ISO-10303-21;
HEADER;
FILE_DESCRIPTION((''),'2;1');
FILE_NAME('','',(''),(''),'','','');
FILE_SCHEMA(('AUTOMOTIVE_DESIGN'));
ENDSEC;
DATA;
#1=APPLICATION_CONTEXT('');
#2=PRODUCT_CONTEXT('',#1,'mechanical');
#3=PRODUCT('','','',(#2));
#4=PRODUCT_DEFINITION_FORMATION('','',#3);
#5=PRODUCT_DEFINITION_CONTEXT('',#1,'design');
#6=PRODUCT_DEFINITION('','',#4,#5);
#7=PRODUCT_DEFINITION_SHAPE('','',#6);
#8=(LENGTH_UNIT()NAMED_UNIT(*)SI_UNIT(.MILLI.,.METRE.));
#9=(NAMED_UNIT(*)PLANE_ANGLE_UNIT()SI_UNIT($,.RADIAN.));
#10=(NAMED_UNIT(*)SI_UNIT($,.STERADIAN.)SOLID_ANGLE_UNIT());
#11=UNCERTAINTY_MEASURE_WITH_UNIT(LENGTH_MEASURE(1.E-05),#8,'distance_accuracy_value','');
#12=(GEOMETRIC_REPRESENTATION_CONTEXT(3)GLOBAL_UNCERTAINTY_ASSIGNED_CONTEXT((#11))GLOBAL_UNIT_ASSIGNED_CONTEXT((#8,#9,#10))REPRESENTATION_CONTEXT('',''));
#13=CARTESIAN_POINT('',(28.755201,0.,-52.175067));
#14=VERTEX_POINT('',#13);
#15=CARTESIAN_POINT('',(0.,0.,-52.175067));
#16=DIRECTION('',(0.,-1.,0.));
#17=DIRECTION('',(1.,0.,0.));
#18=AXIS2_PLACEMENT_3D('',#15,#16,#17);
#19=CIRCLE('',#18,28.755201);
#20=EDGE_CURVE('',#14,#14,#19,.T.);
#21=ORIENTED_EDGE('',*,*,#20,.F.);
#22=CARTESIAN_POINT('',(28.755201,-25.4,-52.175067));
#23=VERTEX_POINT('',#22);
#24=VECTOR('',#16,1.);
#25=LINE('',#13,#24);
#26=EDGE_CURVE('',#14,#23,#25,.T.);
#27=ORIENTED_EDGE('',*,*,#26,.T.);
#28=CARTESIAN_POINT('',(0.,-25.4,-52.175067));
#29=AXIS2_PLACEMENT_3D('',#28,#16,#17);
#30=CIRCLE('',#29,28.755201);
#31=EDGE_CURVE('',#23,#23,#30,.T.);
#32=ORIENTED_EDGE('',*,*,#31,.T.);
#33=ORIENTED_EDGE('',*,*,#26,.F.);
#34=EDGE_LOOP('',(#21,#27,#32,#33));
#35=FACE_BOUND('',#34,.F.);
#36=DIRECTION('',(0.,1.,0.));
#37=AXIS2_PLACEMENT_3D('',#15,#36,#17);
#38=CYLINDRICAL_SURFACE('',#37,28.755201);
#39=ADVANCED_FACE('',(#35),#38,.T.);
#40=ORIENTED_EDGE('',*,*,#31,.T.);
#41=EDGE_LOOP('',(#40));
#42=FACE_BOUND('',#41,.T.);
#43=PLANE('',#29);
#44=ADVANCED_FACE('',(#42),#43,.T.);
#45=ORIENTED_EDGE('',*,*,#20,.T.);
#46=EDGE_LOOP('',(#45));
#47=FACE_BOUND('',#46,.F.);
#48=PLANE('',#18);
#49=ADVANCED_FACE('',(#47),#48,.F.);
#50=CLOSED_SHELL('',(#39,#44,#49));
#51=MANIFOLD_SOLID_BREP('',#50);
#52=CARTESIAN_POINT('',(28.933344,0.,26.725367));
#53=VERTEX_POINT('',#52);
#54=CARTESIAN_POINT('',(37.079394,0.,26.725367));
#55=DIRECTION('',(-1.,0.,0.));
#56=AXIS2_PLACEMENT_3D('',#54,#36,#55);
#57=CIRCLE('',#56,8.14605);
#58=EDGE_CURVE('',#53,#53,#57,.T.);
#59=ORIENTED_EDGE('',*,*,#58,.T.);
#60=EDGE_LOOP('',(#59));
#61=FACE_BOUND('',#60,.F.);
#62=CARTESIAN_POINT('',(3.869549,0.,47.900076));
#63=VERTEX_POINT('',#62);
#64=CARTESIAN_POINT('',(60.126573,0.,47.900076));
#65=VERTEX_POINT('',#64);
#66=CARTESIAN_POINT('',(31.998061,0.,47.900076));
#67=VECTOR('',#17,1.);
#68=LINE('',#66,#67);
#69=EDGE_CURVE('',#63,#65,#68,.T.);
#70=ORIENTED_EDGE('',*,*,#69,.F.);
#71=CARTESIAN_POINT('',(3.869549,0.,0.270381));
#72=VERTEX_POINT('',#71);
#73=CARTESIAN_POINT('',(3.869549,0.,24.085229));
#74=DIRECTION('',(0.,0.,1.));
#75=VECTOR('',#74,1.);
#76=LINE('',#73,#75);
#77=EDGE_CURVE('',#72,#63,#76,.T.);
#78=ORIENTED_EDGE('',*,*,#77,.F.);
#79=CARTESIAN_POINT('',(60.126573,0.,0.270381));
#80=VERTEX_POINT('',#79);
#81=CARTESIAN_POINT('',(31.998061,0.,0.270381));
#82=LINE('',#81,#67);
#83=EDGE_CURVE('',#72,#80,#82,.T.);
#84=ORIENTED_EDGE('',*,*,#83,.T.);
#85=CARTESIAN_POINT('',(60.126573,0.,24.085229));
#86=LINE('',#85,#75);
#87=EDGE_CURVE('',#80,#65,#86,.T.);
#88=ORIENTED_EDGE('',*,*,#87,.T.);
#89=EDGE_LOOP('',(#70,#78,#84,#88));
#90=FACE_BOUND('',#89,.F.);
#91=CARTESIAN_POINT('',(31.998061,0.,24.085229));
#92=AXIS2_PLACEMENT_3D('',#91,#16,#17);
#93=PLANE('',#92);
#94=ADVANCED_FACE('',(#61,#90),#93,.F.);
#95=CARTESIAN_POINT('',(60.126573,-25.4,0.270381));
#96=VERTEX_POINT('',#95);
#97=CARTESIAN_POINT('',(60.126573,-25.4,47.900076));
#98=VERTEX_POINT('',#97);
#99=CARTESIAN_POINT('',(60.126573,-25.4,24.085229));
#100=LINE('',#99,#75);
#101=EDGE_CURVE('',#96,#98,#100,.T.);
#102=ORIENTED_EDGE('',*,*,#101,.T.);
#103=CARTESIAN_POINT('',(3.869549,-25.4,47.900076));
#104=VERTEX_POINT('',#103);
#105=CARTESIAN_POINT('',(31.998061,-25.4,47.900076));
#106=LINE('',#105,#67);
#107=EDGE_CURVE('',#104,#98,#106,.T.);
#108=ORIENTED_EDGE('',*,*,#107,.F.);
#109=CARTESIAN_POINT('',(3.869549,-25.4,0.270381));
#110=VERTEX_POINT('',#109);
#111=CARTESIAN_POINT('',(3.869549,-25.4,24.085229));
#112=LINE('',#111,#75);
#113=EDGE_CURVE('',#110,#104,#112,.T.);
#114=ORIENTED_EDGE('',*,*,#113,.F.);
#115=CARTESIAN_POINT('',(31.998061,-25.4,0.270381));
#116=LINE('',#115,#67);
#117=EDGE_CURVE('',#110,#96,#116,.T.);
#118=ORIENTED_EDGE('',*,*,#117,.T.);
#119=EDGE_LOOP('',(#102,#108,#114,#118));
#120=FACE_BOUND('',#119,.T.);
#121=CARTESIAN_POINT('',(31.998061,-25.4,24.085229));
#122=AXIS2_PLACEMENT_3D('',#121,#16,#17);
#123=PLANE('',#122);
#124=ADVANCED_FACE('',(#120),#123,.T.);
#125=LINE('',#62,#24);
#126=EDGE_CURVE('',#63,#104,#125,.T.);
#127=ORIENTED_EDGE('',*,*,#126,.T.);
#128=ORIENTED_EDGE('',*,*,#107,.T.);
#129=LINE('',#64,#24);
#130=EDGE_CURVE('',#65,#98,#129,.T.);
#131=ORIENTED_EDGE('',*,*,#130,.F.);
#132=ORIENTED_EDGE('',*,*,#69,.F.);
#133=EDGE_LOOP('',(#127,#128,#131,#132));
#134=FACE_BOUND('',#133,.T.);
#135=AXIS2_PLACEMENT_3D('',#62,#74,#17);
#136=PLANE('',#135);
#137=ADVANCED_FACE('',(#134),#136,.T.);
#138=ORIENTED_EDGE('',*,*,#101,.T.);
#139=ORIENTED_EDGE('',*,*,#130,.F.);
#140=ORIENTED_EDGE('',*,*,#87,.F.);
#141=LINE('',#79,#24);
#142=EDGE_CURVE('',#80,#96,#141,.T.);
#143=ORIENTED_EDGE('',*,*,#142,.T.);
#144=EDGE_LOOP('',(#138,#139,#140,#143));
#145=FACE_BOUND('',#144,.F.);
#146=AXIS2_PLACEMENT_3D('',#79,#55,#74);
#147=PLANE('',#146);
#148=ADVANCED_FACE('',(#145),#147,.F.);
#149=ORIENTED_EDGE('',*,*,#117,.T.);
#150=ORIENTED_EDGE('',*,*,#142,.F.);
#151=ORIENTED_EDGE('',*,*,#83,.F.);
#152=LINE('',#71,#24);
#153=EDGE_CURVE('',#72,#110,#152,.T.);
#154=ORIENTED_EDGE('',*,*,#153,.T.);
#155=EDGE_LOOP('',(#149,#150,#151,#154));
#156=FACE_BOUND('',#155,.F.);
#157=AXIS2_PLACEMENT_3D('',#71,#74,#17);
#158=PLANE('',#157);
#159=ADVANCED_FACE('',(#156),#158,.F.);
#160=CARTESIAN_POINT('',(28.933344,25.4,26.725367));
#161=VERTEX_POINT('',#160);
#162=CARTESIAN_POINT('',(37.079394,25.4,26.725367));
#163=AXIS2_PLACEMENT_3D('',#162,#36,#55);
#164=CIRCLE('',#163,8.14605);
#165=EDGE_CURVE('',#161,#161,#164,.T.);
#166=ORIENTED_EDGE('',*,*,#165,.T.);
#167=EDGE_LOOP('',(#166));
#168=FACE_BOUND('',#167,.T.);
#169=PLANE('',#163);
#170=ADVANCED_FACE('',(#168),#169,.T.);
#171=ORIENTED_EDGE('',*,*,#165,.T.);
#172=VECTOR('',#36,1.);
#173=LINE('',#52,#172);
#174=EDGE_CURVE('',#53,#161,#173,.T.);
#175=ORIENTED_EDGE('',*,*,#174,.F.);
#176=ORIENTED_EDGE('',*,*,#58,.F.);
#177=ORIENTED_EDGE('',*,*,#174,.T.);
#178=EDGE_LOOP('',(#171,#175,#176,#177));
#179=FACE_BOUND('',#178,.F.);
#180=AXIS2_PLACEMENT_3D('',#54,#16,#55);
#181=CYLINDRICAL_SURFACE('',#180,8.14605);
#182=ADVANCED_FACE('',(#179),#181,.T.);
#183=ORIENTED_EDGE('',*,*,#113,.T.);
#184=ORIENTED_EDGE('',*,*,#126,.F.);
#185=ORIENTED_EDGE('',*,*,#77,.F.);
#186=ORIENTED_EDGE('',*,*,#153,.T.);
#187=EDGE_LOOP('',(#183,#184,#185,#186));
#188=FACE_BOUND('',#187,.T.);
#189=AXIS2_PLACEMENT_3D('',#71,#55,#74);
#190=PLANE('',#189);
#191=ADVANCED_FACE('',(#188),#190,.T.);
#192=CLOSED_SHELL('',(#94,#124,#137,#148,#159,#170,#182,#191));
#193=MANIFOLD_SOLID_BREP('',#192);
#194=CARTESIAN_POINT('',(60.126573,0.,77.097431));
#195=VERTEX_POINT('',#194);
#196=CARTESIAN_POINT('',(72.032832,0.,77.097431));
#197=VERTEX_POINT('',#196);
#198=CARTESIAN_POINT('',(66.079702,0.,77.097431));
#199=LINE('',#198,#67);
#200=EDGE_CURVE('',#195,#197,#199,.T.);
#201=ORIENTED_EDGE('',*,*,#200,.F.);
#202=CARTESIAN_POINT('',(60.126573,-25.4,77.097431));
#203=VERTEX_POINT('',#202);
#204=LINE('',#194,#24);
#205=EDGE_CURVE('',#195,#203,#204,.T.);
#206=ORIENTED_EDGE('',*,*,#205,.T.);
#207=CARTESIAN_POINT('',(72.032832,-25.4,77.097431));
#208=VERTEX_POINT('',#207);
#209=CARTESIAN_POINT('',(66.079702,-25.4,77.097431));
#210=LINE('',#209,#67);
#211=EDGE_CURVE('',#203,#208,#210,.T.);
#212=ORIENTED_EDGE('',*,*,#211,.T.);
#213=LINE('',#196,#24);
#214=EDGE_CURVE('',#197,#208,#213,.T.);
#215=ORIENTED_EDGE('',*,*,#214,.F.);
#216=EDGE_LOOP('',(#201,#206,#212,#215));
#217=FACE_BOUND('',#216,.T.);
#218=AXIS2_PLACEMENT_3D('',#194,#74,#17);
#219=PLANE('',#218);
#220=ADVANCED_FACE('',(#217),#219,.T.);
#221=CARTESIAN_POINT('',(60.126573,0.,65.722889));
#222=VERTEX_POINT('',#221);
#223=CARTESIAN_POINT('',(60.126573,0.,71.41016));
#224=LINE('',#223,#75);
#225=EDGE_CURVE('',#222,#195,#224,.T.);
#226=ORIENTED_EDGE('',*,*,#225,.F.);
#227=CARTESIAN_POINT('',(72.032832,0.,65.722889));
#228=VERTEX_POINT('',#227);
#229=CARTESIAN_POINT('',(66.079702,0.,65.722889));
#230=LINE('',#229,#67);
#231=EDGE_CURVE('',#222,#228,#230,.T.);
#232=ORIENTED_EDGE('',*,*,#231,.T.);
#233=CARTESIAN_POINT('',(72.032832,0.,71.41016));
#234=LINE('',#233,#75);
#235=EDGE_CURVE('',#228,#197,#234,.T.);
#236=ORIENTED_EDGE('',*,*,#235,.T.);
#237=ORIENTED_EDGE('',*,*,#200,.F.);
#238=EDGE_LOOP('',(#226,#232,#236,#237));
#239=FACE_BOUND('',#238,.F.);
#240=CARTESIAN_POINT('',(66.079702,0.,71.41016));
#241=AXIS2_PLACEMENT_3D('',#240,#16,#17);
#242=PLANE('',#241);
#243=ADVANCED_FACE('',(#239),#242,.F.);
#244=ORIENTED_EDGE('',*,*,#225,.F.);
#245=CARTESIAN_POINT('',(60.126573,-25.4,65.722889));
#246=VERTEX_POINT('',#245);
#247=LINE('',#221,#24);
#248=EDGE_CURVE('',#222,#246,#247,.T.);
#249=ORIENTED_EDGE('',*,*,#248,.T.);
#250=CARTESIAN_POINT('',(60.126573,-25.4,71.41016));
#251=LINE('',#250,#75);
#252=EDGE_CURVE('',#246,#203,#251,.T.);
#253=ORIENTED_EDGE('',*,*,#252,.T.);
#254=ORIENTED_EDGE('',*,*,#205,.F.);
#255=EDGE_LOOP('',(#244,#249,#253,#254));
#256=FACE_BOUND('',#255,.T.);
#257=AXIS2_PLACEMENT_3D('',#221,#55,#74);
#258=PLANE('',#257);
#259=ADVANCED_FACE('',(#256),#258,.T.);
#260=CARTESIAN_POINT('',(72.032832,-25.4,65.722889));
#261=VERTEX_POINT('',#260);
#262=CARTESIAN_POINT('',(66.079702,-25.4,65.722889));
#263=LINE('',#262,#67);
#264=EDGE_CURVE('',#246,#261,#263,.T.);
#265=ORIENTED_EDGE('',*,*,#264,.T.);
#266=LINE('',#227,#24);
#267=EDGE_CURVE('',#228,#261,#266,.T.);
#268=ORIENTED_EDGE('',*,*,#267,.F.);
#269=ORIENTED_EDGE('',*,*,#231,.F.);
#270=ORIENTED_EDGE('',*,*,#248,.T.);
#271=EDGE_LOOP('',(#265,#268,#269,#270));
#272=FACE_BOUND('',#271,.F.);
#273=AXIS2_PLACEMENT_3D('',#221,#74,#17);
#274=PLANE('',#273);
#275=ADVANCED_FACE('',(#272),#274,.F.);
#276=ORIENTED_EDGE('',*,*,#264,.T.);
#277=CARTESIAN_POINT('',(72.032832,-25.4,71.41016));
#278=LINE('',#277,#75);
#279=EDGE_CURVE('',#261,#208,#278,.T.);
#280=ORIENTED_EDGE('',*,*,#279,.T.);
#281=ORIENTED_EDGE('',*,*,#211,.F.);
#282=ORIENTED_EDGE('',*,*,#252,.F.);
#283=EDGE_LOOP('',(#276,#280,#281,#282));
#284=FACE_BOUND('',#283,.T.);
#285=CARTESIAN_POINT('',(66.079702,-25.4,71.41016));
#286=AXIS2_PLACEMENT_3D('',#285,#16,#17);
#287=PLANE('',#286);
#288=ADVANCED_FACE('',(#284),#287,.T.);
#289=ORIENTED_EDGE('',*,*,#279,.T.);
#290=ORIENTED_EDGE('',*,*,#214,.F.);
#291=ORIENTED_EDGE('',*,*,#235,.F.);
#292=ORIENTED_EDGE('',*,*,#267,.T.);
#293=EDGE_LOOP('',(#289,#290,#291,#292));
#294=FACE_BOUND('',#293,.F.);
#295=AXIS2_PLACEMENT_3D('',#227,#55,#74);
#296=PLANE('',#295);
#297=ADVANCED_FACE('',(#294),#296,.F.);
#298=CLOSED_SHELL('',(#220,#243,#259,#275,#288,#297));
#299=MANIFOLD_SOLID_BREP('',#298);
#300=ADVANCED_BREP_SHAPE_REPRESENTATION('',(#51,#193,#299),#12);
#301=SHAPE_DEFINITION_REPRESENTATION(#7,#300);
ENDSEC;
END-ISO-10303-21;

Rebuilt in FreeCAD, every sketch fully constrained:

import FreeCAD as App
import Part
import Sketcher

V = App.Vector
Q = App.Units.Quantity


def add_polygon(sketch, points):
    """Adds a closed chain of lines whose ends are joined by coincident constraints."""
    first, n = sketch.GeometryCount, len(points)
    for a, b in zip(points, points[1:] + points[:1]):
        sketch.addGeometry(Part.LineSegment(App.Vector(*a, 0), App.Vector(*b, 0)), False)
    for i in range(n):
        sketch.addConstraint(Sketcher.Constraint("Coincident", first + i, 2, first + (i + 1) % n, 1))

doc = App.newDocument("Part")
params = doc.addObject("Spreadsheet::Sheet", "Params")
for row, (alias, value) in enumerate([
    ("pad1_length", "1 in"),
    ("pad2_length", "1 in"),
    ("pad3_length", "1 in"),
], start=1):
    params.set(f"A{row}", alias)
    params.set(f"B{row}", "=" + value)
    params.setAlias(f"B{row}", alias)

body = doc.addObject("PartDesign::Body", "Body")
body.AllowCompound = True

sketch1 = body.newObject("Sketcher::SketchObject", "Sketch")
sketch1.AttachmentSupport = (doc.getObject("XZ_Plane"), [""])
sketch1.MapMode = "FlatFace"
add_polygon(sketch1, [(60.126573, 77.097431), (60.126573, 65.722889), (72.032832, 65.722889), (72.032832, 77.097431)])
add_polygon(sketch1, [(3.869549, 47.900076), (3.869549, 0.270381), (60.126573, 0.270381), (60.126573, 47.900076)])
sketch1.addConstraint([
    Sketcher.Constraint("Vertical", 0),
    Sketcher.Constraint("Horizontal", 1),
    Sketcher.Constraint("Vertical", 2),
    Sketcher.Constraint("Horizontal", 3),
    Sketcher.Constraint("Vertical", 4),
    Sketcher.Constraint("Horizontal", 5),
    Sketcher.Constraint("Vertical", 6),
    Sketcher.Constraint("Horizontal", 7),
    Sketcher.Constraint("Vertical", 3, 2, 5, 2),
    Sketcher.Constraint("DistanceX", 1, 1, 1, 2, Q("11.906259 mm")),
    Sketcher.Constraint("DistanceY", 0, 2, 0, 1, Q("11.374541 mm")),
    Sketcher.Constraint("DistanceX", 5, 1, 5, 2, Q("56.257025 mm")),
    Sketcher.Constraint("DistanceY", 4, 2, 4, 1, Q("47.629695 mm")),
    Sketcher.Constraint("DistanceY", -1, 1, 0, 2, Q("65.722889 mm")),
    Sketcher.Constraint("DistanceX", -1, 1, 1, 2, Q("72.032832 mm")),
    Sketcher.Constraint("DistanceY", -1, 1, 4, 2, Q("0.270381 mm")),
])
pad1 = body.newObject("PartDesign::Pad", "Pad")
pad1.Profile = sketch1
pad1.setExpression("Length", "Params.pad1_length")

sketch2 = body.newObject("Sketcher::SketchObject", "Sketch001")
sketch2.AttachmentSupport = (doc.getObject("XZ_Plane"), [""])
sketch2.MapMode = "FlatFace"
sketch2.addGeometry(Part.Circle(V(37.079394, 26.725367, 0), V(0, 0, 1), 8.14605), False)
sketch2.addConstraint([
    Sketcher.Constraint("Diameter", 0, Q("16.2921 mm")),
    Sketcher.Constraint("DistanceX", -1, 1, 0, 3, Q("37.079394 mm")),
    Sketcher.Constraint("DistanceY", -1, 1, 0, 3, Q("26.725367 mm")),
])
pad2 = body.newObject("PartDesign::Pad", "Pad001")
pad2.Profile = sketch2
pad2.setExpression("Length", "Params.pad2_length")
pad2.Reversed = True
body2 = doc.addObject("PartDesign::Body", "Body001")

sketch3 = body2.newObject("Sketcher::SketchObject", "Sketch002")
sketch3.AttachmentSupport = (doc.getObject("XZ_Plane001"), [""])
sketch3.MapMode = "FlatFace"
sketch3.addGeometry(Part.Circle(V(0, -52.175067, 0), V(0, 0, 1), 28.755201), False)
sketch3.addConstraint([
    Sketcher.Constraint("PointOnObject", 0, 3, -2),
    Sketcher.Constraint("Diameter", 0, Q("57.510402 mm")),
    Sketcher.Constraint("DistanceY", 0, 3, -1, 1, Q("52.175067 mm")),
])
pad3 = body2.newObject("PartDesign::Pad", "Pad002")
pad3.Profile = sketch3
pad3.setExpression("Length", "Params.pad3_length")

doc.recompute()
